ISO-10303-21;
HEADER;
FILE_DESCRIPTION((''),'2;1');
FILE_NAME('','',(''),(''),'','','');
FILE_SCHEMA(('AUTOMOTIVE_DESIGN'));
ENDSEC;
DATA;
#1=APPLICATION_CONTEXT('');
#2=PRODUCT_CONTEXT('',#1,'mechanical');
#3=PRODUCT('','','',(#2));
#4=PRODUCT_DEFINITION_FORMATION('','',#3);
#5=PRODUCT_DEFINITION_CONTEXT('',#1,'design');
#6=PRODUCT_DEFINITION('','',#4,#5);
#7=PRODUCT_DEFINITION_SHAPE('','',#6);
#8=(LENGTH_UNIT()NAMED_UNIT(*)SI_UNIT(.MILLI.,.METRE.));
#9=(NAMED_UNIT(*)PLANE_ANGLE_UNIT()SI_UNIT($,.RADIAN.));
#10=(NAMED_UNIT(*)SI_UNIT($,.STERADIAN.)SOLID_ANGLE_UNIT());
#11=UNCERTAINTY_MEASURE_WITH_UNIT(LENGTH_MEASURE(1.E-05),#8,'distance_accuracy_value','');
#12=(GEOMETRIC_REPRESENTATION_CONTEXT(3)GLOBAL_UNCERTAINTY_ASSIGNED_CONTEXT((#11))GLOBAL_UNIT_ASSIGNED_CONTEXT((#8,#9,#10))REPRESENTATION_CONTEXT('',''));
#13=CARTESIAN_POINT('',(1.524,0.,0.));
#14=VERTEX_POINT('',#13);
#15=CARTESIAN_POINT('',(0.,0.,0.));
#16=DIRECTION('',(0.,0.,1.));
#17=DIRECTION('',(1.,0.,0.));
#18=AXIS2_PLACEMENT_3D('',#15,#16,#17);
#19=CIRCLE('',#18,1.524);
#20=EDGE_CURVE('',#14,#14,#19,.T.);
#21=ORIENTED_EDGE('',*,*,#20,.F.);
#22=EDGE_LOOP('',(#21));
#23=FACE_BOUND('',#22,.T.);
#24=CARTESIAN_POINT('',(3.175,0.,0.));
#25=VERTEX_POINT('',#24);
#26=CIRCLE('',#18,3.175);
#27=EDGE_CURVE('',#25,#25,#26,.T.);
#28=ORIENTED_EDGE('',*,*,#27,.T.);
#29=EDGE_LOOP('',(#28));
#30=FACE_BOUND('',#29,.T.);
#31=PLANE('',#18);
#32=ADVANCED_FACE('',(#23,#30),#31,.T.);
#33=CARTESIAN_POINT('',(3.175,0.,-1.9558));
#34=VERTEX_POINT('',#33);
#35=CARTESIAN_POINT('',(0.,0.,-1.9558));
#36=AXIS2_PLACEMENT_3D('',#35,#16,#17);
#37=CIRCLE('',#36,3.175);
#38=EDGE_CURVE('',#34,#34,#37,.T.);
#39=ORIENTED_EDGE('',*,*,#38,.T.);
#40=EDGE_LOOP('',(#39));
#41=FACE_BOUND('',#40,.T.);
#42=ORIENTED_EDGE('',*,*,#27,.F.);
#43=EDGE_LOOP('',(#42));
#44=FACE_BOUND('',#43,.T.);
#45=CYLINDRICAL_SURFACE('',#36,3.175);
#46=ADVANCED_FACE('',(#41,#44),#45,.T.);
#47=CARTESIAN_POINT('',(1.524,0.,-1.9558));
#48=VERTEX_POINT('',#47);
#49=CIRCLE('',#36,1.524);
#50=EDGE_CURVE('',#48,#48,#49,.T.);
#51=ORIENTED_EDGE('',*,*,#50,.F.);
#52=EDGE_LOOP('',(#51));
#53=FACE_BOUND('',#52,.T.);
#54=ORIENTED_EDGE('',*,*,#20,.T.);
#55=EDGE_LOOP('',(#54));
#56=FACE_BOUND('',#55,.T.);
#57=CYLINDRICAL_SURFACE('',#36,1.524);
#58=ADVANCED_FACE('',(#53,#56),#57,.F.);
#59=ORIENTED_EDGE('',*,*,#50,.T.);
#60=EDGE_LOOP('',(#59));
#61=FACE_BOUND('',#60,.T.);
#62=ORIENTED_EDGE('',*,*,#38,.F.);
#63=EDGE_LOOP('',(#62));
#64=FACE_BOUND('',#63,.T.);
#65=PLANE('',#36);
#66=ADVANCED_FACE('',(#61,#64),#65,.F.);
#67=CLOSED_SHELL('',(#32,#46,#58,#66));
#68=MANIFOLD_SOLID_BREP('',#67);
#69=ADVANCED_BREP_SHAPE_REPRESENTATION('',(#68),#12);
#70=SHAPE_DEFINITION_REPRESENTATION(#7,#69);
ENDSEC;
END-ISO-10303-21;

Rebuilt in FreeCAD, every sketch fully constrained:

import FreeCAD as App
import Part
import Sketcher
from FreeCAD import Vector
Q = App.Units.Quantity

doc = App.newDocument("Part")
params = doc.addObject("Spreadsheet::Sheet", "Params")
for row, (alias, value) in enumerate([
    ("sketch1_diameter", "0.25 in"),
    ("sketch1_diameter2", "0.12 in"),
    ("pad1_length", "0.077 in"),
], start=1):
    params.set(f"A{row}", alias)
    params.set(f"B{row}", "=" + value)
    params.setAlias(f"B{row}", alias)

body = doc.addObject("PartDesign::Body", "Body")

# Sketch on XY plane
sketch1 = doc.addObject("Sketcher::SketchObject", "Sketch")
body.addObject(sketch1)
sketch1.AttachmentSupport = (doc.XY_Plane, [""])
sketch1.MapMode = "FlatFace"
sketch1.addGeometry(Part.Circle(Vector(0, 0, 0), Vector(0, 0, 1), 3.175), False)
sketch1.addGeometry(Part.Circle(Vector(0, 0, 0), Vector(0, 0, 1), 1.524), False)
sketch1.addConstraint(Sketcher.Constraint("Coincident", 0, 3, -1, 1))
sketch1.addConstraint(Sketcher.Constraint("Coincident", 1, 3, -1, 1))
sketch1.addConstraint(Sketcher.Constraint("Diameter", 0, Q("0.25 in")))
sketch1.addConstraint(Sketcher.Constraint("Diameter", 1, Q("0.12 in")))
sketch1.setExpression("Constraints[2]", "Params.sketch1_diameter")
sketch1.setExpression("Constraints[3]", "Params.sketch1_diameter2")
pad1 = doc.addObject("PartDesign::Pad", "Pad")
body.addObject(pad1)
pad1.Profile = sketch1
pad1.setExpression("Length", "Params.pad1_length")
pad1.Reversed = True

doc.recompute()
